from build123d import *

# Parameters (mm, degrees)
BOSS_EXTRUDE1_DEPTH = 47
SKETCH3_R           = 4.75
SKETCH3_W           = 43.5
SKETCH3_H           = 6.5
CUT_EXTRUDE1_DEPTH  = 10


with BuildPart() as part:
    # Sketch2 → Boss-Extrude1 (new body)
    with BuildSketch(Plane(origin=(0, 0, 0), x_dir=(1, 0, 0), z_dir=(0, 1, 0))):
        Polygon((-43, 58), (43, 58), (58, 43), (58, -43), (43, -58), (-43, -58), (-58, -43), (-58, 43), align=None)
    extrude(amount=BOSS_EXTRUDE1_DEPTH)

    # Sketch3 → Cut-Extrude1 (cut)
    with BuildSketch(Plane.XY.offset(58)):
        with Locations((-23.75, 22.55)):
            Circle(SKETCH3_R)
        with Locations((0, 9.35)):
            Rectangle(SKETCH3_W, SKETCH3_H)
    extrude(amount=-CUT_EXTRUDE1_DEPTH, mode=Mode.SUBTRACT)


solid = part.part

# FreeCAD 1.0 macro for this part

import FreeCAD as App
import Part
import Sketcher
from FreeCAD import Vector

doc = App.newDocument("Part")
body = doc.addObject("PartDesign::Body", "Body")

# Sketch on XZ plane
sketch1 = doc.addObject("Sketcher::SketchObject", "Sketch")
body.addObject(sketch1)
sketch1.AttachmentSupport = (doc.XZ_Plane, [""])
sketch1.MapMode = "FlatFace"
sketch1.addGeometry(Part.LineSegment(Vector(43, -58, 0), Vector(-43, -58, 0)), False)
sketch1.addGeometry(Part.LineSegment(Vector(-43, -58, 0), Vector(-58, -43, 0)), False)
sketch1.addGeometry(Part.LineSegment(Vector(-58, -43, 0), Vector(-58, 43, 0)), False)
sketch1.addGeometry(Part.LineSegment(Vector(-58, 43, 0), Vector(-43, 58, 0)), False)
sketch1.addGeometry(Part.LineSegment(Vector(-43, 58, 0), Vector(43, 58, 0)), False)
sketch1.addGeometry(Part.LineSegment(Vector(43, 58, 0), Vector(58, 43, 0)), False)
sketch1.addGeometry(Part.LineSegment(Vector(58, 43, 0), Vector(58, -43, 0)), False)
sketch1.addGeometry(Part.LineSegment(Vector(58, -43, 0), Vector(43, -58, 0)), False)
sketch1.addConstraint(Sketcher.Constraint("Coincident", 0, 2, 1, 1))
sketch1.addConstraint(Sketcher.Constraint("Coincident", 1, 2, 2, 1))
sketch1.addConstraint(Sketcher.Constraint("Coincident", 2, 2, 3, 1))
sketch1.addConstraint(Sketcher.Constraint("Coincident", 3, 2, 4, 1))
sketch1.addConstraint(Sketcher.Constraint("Coincident", 4, 2, 5, 1))
sketch1.addConstraint(Sketcher.Constraint("Coincident", 5, 2, 6, 1))
sketch1.addConstraint(Sketcher.Constraint("Coincident", 6, 2, 7, 1))
sketch1.addConstraint(Sketcher.Constraint("Coincident", 7, 2, 0, 1))
sketch1.addConstraint(Sketcher.Constraint("Horizontal", 0))
sketch1.addConstraint(Sketcher.Constraint("Vertical", 2))
sketch1.addConstraint(Sketcher.Constraint("Horizontal", 4))
sketch1.addConstraint(Sketcher.Constraint("Vertical", 6))
sketch1.addConstraint(Sketcher.Constraint("Symmetric", 0, 2, 4, 2, -1, 1))
sketch1.addConstraint(Sketcher.Constraint("Symmetric", 1, 2, 5, 2, -1, 1))
sketch1.addConstraint(Sketcher.Constraint("Perpendicular", 1, 3))
sketch1.addConstraint(Sketcher.Constraint("Perpendicular", 5, 7))
sketch1.addConstraint(Sketcher.Constraint("Horizontal", 2, 2, 5, 2))
sketch1.addConstraint(Sketcher.Constraint("Horizontal", 1, 2, 6, 2))
sketch1.addConstraint(Sketcher.Constraint("Vertical", 0, 2, 3, 2))
sketch1.addConstraint(Sketcher.Constraint("Equal", 4, 2))
sketch1.addConstraint(Sketcher.Constraint("DistanceX", 0, 2, 0, 1, 86.0))
sketch1.addConstraint(Sketcher.Constraint("DistanceY", 0, 2, -1, 1, 58.0))
pad1 = doc.addObject("PartDesign::Pad", "Pad")
body.addObject(pad1)
pad1.Profile = sketch1
pad1.Length = 47
pad1.Reversed = True

# Sketch on XY plane
sketch2 = doc.addObject("Sketcher::SketchObject", "Sketch001")
body.addObject(sketch2)
sketch2.AttachmentSupport = (doc.XY_Plane, [""])
sketch2.MapMode = "FlatFace"
sketch2.AttachmentOffset = App.Placement(Vector(0, 0, 58), App.Rotation())
sketch2.addGeometry(Part.Circle(Vector(-23.75, 22.55, 0), Vector(0, 0, 1), 4.75), False)
sketch2.addGeometry(Part.LineSegment(Vector(-21.75, 12.6, 0), Vector(-21.75, 6.1, 0)), False)
sketch2.addGeometry(Part.LineSegment(Vector(-21.75, 6.1, 0), Vector(21.75, 6.1, 0)), False)
sketch2.addGeometry(Part.LineSegment(Vector(21.75, 6.1, 0), Vector(21.75, 12.6, 0)), False)
sketch2.addGeometry(Part.LineSegment(Vector(21.75, 12.6, 0), Vector(-21.75, 12.6, 0)), False)
sketch2.addConstraint(Sketcher.Constraint("Coincident", 1, 2, 2, 1))
sketch2.addConstraint(Sketcher.Constraint("Coincident", 2, 2, 3, 1))
sketch2.addConstraint(Sketcher.Constraint("Coincident", 3, 2, 4, 1))
sketch2.addConstraint(Sketcher.Constraint("Coincident", 4, 2, 1, 1))
sketch2.addConstraint(Sketcher.Constraint("Vertical", 1))
sketch2.addConstraint(Sketcher.Constraint("Horizontal", 2))
sketch2.addConstraint(Sketcher.Constraint("Vertical", 3))
sketch2.addConstraint(Sketcher.Constraint("Horizontal", 4))
sketch2.addConstraint(Sketcher.Constraint("Diameter", 0, 9.5))
sketch2.addConstraint(Sketcher.Constraint("DistanceX", 2, 1, 2, 2, 43.5))
sketch2.addConstraint(Sketcher.Constraint("DistanceY", 1, 2, 1, 1, 6.5))
sketch2.addConstraint(Sketcher.Constraint("DistanceX", 0, 3, 1, 2, 2.0))
sketch2.addConstraint(Sketcher.Constraint("DistanceY", -1, 1, 1, 2, 6.1))
sketch2.addConstraint(Sketcher.Constraint("DistanceX", 0, 3, -1, 1, 23.75))
sketch2.addConstraint(Sketcher.Constraint("DistanceY", -1, 1, 0, 3, 22.55))
pocket1 = doc.addObject("PartDesign::Pocket", "Pocket")
body.addObject(pocket1)
pocket1.Profile = sketch2
pocket1.Length = 10

doc.recompute()
